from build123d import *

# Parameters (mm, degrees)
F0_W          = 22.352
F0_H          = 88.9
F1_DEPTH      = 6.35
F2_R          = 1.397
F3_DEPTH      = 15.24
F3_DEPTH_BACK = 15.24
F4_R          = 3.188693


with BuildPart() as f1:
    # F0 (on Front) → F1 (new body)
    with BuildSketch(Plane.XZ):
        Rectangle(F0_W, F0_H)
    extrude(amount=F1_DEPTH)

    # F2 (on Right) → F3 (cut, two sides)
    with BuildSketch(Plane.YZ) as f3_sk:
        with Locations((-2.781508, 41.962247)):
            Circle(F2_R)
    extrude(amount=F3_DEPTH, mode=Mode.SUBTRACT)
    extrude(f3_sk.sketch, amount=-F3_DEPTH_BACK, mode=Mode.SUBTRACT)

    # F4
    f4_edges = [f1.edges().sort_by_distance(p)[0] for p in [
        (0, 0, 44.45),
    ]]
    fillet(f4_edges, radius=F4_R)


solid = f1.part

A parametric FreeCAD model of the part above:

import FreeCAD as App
import Part
import Sketcher

V = App.Vector
Q = App.Units.Quantity


def edges_at(feature, points):
    """Names of the edges that pass closest to the given points."""
    edges = feature.Shape.Edges
    near = lambda p: min(range(len(edges)), key=lambda i: edges[i].distToShape(Part.Vertex(*p))[0])
    return sorted({f"Edge{near(p) + 1}" for p in points})


def add_polygon(sketch, points):
    """Adds a closed chain of lines whose ends are joined by coincident constraints."""
    first, n = sketch.GeometryCount, len(points)
    for a, b in zip(points, points[1:] + points[:1]):
        sketch.addGeometry(Part.LineSegment(App.Vector(*a, 0), App.Vector(*b, 0)), False)
    for i in range(n):
        sketch.addConstraint(Sketcher.Constraint("Coincident", first + i, 2, first + (i + 1) % n, 1))

doc = App.newDocument("Part")
body = doc.addObject("PartDesign::Body", "Body")

# Sketch on XZ plane
sketch1 = body.newObject("Sketcher::SketchObject", "Sketch")
sketch1.AttachmentSupport = (doc.getObject("XZ_Plane"), [""])
sketch1.MapMode = "FlatFace"
add_polygon(sketch1, [(-11, 44), (-11, -44), (11, -44), (11, 44)])  # lines 0-3
sketch1.addConstraint([
    Sketcher.Constraint("Vertical", 0),
    Sketcher.Constraint("Horizontal", 1),
    Sketcher.Constraint("Vertical", 2),
    Sketcher.Constraint("Horizontal", 3),
    Sketcher.Constraint("Symmetric", 0, 2, 2, 2, -1, 1),
    Sketcher.Constraint("DistanceY", 0, 2, 0, 1, Q("3.5 in")),
    Sketcher.Constraint("DistanceX", 1, 1, 1, 2, Q("0.88 in")),
])
pad1 = body.newObject("PartDesign::Pad", "Pad")
pad1.Profile = sketch1
pad1.Length = Q("0.25 in")

# Sketch on YZ plane
sketch2 = body.newObject("Sketcher::SketchObject", "Sketch001")
sketch2.AttachmentSupport = (doc.getObject("YZ_Plane"), [""])
sketch2.MapMode = "FlatFace"
sketch2.addGeometry(Part.Circle(V(-2.8, 42, 0), V(0, 0, 1), 1.4), False)
sketch2.addConstraint([
    Sketcher.Constraint("Diameter", 0, Q("0.11 in")),
    Sketcher.Constraint("DistanceX", 0, 3, -1, 1, Q("2.781508 mm")),
    Sketcher.Constraint("DistanceY", -1, 1, 0, 3, Q("41.962247 mm")),
])
pocket1 = body.newObject("PartDesign::Pocket", "Pocket")
pocket1.Profile = sketch2
pocket1.Type = "ThroughAll"
pocket1.Midplane = True
doc.recompute()

fillet = body.newObject("PartDesign::Fillet", "Fillet")
fillet.Base = (pocket1, edges_at(pocket1, [(0, 0, 44.45)]))
fillet.Radius = 3.188693

doc.recompute()
